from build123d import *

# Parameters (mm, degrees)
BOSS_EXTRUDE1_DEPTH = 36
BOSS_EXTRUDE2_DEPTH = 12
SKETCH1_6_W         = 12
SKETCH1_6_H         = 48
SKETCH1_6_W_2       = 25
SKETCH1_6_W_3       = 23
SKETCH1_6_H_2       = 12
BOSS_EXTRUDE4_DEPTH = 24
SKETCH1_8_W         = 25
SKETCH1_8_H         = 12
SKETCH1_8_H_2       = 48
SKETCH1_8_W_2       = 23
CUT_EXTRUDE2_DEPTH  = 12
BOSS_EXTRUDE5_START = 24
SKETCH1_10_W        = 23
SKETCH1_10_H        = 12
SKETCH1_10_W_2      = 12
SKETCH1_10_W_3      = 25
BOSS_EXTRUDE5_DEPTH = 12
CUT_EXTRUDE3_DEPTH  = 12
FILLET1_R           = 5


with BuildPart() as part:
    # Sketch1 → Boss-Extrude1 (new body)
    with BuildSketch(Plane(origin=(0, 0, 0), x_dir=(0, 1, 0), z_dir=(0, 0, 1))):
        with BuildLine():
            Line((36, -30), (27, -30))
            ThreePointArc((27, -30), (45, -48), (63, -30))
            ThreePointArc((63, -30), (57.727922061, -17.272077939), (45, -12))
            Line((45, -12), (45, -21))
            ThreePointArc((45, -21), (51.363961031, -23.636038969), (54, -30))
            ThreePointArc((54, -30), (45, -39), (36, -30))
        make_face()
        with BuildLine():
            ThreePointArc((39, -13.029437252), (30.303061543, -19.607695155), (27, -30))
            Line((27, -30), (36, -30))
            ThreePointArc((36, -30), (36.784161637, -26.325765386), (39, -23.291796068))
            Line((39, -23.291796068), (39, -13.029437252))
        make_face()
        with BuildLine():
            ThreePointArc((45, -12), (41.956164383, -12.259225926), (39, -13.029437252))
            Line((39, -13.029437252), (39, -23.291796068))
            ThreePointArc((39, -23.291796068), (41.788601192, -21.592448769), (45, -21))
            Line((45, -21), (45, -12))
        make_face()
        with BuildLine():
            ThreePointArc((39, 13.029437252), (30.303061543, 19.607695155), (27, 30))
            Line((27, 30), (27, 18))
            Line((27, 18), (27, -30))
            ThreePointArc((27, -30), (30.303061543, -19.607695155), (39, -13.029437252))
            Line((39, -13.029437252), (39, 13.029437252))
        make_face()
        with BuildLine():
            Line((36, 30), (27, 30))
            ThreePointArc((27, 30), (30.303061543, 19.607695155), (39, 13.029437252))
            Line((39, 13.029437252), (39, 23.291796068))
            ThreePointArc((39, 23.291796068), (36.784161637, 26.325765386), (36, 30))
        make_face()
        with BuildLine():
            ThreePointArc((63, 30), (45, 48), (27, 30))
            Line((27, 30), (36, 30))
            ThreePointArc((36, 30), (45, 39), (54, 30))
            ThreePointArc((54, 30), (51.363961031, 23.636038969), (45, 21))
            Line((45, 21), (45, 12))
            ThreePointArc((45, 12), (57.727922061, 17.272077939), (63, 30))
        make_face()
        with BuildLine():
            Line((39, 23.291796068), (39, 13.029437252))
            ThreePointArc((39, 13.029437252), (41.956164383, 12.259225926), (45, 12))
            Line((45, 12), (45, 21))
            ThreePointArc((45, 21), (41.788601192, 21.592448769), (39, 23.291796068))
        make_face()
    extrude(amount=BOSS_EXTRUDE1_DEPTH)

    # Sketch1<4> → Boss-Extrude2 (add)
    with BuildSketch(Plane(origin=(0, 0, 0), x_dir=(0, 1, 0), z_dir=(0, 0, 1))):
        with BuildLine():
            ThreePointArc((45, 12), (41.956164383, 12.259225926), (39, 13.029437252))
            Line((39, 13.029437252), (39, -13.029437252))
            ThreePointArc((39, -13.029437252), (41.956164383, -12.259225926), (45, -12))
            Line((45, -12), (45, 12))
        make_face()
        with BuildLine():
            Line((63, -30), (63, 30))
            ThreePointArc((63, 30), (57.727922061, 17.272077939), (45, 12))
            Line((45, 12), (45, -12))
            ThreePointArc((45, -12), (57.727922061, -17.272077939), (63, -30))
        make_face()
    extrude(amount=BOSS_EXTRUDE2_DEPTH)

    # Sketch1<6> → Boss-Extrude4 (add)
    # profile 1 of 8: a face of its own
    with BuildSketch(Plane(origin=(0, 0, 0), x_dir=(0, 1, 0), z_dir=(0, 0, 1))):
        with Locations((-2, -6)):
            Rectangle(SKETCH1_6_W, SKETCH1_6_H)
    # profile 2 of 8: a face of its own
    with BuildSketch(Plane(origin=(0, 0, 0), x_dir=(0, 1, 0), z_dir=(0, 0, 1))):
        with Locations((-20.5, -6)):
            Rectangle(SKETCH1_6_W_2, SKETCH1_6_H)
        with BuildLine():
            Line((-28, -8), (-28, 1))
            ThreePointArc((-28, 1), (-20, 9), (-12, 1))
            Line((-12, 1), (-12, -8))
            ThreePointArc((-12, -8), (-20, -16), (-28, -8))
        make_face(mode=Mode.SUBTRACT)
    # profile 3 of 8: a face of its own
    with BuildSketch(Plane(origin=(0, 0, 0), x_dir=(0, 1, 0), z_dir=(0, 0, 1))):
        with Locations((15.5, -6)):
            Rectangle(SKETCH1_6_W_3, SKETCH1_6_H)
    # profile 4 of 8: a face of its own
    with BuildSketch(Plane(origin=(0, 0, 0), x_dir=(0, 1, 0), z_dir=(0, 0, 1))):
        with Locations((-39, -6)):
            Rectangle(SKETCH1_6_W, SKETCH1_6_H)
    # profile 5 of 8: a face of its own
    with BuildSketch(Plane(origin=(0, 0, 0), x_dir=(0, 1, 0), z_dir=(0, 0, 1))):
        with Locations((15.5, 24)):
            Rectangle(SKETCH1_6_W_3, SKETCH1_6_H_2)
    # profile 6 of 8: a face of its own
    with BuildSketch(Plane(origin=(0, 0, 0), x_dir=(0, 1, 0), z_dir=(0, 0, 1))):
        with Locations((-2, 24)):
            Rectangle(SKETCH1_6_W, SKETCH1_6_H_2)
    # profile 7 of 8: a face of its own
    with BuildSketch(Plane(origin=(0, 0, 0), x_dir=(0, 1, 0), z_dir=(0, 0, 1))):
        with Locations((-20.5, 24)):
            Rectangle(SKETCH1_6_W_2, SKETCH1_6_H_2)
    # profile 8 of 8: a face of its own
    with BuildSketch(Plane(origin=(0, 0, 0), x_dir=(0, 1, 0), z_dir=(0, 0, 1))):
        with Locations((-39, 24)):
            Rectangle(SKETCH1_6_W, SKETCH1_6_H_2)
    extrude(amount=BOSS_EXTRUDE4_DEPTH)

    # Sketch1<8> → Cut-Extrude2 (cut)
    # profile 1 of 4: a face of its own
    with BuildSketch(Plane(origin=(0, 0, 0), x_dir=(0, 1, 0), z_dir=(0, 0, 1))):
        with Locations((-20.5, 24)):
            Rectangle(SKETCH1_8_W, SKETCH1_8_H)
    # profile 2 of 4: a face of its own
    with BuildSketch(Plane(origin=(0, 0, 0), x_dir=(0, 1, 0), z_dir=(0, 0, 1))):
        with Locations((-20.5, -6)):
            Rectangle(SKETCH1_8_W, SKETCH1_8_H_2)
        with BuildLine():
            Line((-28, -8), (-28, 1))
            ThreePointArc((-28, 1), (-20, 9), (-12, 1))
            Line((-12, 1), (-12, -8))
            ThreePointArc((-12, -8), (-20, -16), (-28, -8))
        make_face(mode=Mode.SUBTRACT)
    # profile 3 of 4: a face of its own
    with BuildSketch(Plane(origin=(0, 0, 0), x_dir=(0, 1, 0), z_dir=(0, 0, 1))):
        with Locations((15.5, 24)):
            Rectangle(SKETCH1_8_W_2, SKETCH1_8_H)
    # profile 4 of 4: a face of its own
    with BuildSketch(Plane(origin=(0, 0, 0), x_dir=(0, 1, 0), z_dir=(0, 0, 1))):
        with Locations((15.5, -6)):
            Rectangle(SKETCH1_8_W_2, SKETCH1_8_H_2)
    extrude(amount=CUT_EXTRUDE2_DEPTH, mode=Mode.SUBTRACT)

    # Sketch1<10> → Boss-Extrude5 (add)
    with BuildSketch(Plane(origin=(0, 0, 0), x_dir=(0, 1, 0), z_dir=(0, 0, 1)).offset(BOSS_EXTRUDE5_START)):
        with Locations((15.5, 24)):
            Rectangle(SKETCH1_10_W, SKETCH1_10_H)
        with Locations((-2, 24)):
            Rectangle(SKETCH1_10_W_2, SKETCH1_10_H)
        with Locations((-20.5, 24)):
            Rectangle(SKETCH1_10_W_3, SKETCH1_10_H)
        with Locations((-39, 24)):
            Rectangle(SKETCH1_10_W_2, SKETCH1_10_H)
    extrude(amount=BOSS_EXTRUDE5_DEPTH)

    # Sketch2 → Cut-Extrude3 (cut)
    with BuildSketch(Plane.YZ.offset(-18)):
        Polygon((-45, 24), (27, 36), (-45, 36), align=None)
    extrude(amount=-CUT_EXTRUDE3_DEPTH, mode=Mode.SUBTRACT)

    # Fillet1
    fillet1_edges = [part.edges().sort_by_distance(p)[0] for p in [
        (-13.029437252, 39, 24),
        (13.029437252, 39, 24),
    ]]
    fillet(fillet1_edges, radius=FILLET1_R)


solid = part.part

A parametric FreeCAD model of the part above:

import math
import FreeCAD as App
import Part
import Sketcher

V = App.Vector
Q = App.Units.Quantity


def edges_at(feature, points):
    """Names of the edges that pass closest to the given points."""
    edges = feature.Shape.Edges
    near = lambda p: min(range(len(edges)), key=lambda i: edges[i].distToShape(Part.Vertex(*p))[0])
    return sorted({f"Edge{near(p) + 1}" for p in points})


def add_polygon(sketch, points):
    """Adds a closed chain of lines whose ends are joined by coincident constraints."""
    first, n = sketch.GeometryCount, len(points)
    for a, b in zip(points, points[1:] + points[:1]):
        sketch.addGeometry(Part.LineSegment(App.Vector(*a, 0), App.Vector(*b, 0)), False)
    for i in range(n):
        sketch.addConstraint(Sketcher.Constraint("Coincident", first + i, 2, first + (i + 1) % n, 1))

doc = App.newDocument("Part")
body = doc.addObject("PartDesign::Body", "Body")

# Sketch on XY plane
sketch1 = body.newObject("Sketcher::SketchObject", "Sketch")
sketch1.AttachmentSupport = (doc.getObject("XY_Plane"), [""])
sketch1.MapMode = "FlatFace"
sketch1.addGeometry([
    Part.ArcOfCircle(Part.Circle(V(30, 45, 0), V(0, 0, 1), 18), math.radians(-90), math.radians(90)),  # 0
    Part.ArcOfCircle(Part.Circle(V(30, 45, 0), V(0, 0, 1), 18), math.radians(90), math.radians(180)),  # 1
    Part.ArcOfCircle(Part.Circle(V(30, 45, 0), V(0, 0, 1), 18), math.radians(180), math.radians(199.471221)),  # 2
    Part.LineSegment(V(13.029437, 39, 0), V(-13.029437, 39, 0)),  # 3
    Part.ArcOfCircle(Part.Circle(V(-30, 45, 0), V(0, 0, 1), 18), math.radians(-19.471221), math.radians(0)),  # 4
    Part.ArcOfCircle(Part.Circle(V(-30, 45, 0), V(0, 0, 1), 18), math.radians(0), math.radians(90)),  # 5
    Part.ArcOfCircle(Part.Circle(V(-30, 45, 0), V(0, 0, 1), 18), math.radians(90), math.radians(270)),  # 6
    Part.LineSegment(V(-30, 27, 0), V(30, 27, 0)),  # 7
    Part.ArcOfCircle(Part.Circle(V(-30, 45, 0), V(0, 0, 1), 9), math.radians(-90), math.radians(-41.810315)),  # 8
    Part.ArcOfCircle(Part.Circle(V(-30, 45, 0), V(0, 0, 1), 9), math.radians(90), math.radians(270)),  # 9
    Part.ArcOfCircle(Part.Circle(V(-30, 45, 0), V(0, 0, 1), 9), math.radians(0), math.radians(90)),  # 10
    Part.ArcOfCircle(Part.Circle(V(-30, 45, 0), V(0, 0, 1), 9), math.radians(-41.810315), math.radians(0)),  # 11
    Part.ArcOfCircle(Part.Circle(V(30, 45, 0), V(0, 0, 1), 9), math.radians(90), math.radians(180)),  # 12
    Part.ArcOfCircle(Part.Circle(V(30, 45, 0), V(0, 0, 1), 9), math.radians(-90), math.radians(90)),  # 13
    Part.ArcOfCircle(Part.Circle(V(30, 45, 0), V(0, 0, 1), 9), math.radians(-138.189685), math.radians(-90)),  # 14
    Part.ArcOfCircle(Part.Circle(V(30, 45, 0), V(0, 0, 1), 9), math.radians(180), math.radians(221.810315)),  # 15
], False)
sketch1.addConstraint([
    Sketcher.Constraint("Tangent", 0, 2, 1, 1),
    Sketcher.Constraint("Tangent", 1, 2, 2, 1),
    Sketcher.Constraint("Coincident", 2, 2, 3, 1),
    Sketcher.Constraint("Coincident", 3, 2, 4, 1),
    Sketcher.Constraint("Tangent", 4, 2, 5, 1),
    Sketcher.Constraint("Tangent", 5, 2, 6, 1),
    Sketcher.Constraint("Tangent", 6, 2, 7, 1),
    Sketcher.Constraint("Tangent", 7, 2, 0, 1),
    Sketcher.Constraint("Tangent", 8, 1, 9, 2),
    Sketcher.Constraint("Tangent", 9, 1, 10, 2),
    Sketcher.Constraint("Tangent", 10, 1, 11, 2),
    Sketcher.Constraint("Tangent", 11, 1, 8, 2),
    Sketcher.Constraint("Tangent", 12, 1, 13, 2),
    Sketcher.Constraint("Tangent", 13, 1, 14, 2),
    Sketcher.Constraint("Tangent", 14, 1, 15, 2),
    Sketcher.Constraint("Tangent", 15, 1, 12, 2),
    Sketcher.Constraint("Horizontal", 3),
    Sketcher.Constraint("Horizontal", 7),
    Sketcher.Constraint("Coincident", 2, 3, 0, 3),
    Sketcher.Constraint("Coincident", 6, 3, 4, 3),
    Sketcher.Constraint("Coincident", 8, 3, 4, 3),
    Sketcher.Constraint("Coincident", 12, 3, 0, 3),
    Sketcher.Constraint("Equal", 2, 4),
    Sketcher.Constraint("Equal", 8, 9),
    Sketcher.Constraint("Equal", 11, 12),
    Sketcher.Constraint("Equal", 12, 13),
    Sketcher.Constraint("Symmetric", 1, 2, 4, 2, -2),
    Sketcher.Constraint("Horizontal", 15, 3, 1, 2),
    Sketcher.Constraint("Horizontal", 4, 2, 10, 1),
    Sketcher.Constraint("Horizontal", 3, 2, 11, 1),
    Sketcher.Constraint("Horizontal", 11, 1, 14, 1),
    Sketcher.Constraint("Horizontal", 10, 1, 15, 1),
    Sketcher.Constraint("Vertical", 15, 3, 0, 2),
    Sketcher.Constraint("Vertical", 11, 3, 5, 2),
    Sketcher.Constraint("Vertical", 6, 2, 8, 1),
    Sketcher.Constraint("Vertical", 8, 1, 9, 1),
    Sketcher.Constraint("Vertical", 7, 2, 12, 1),
    Sketcher.Constraint("Vertical", 12, 1, 13, 1),
    Sketcher.Constraint("Radius", 0, Q("18 mm")),
    Sketcher.Constraint("Radius", 8, Q("9 mm")),
    Sketcher.Constraint("DistanceX", 7, 1, 7, 2, Q("60 mm")),
    Sketcher.Constraint("DistanceY", -1, 1, 0, 3, Q("45 mm")),
    Sketcher.Constraint("DistanceY", -1, 1, 2, 2, Q("39 mm")),
])
pad1 = body.newObject("PartDesign::Pad", "Pad")
pad1.Profile = sketch1
pad1.Length = 36

# Sketch on XY plane
sketch2 = body.newObject("Sketcher::SketchObject", "Sketch001")
sketch2.AttachmentSupport = (doc.getObject("XY_Plane"), [""])
sketch2.MapMode = "FlatFace"
sketch2.addGeometry([
    Part.ArcOfCircle(Part.Circle(V(-30, 45, 0), V(0, 0, 1), 18), math.radians(-19.471221), math.radians(0)),  # 0
    Part.LineSegment(V(-13.029437, 39, 0), V(13.029437, 39, 0)),  # 1
    Part.ArcOfCircle(Part.Circle(V(30, 45, 0), V(0, 0, 1), 18), math.radians(180), math.radians(199.471221)),  # 2
    Part.ArcOfCircle(Part.Circle(V(30, 45, 0), V(0, 0, 1), 18), math.radians(90), math.radians(180)),  # 3
    Part.LineSegment(V(30, 63, 0), V(-30, 63, 0)),  # 4
    Part.ArcOfCircle(Part.Circle(V(-30, 45, 0), V(0, 0, 1), 18), math.radians(0), math.radians(90)),  # 5
], False)
sketch2.addConstraint([
    Sketcher.Constraint("Coincident", 0, 1, 1, 1),
    Sketcher.Constraint("Coincident", 1, 2, 2, 2),
    Sketcher.Constraint("Tangent", 2, 1, 3, 2),
    Sketcher.Constraint("Tangent", 3, 1, 4, 1),
    Sketcher.Constraint("Tangent", 4, 2, 5, 2),
    Sketcher.Constraint("Tangent", 5, 1, 0, 2),
    Sketcher.Constraint("Horizontal", 1),
    Sketcher.Constraint("Horizontal", 4),
    Sketcher.Constraint("Equal", 0, 2),
    Sketcher.Constraint("Equal", 2, 3),
    Sketcher.Constraint("Equal", 3, 5),
    Sketcher.Constraint("Symmetric", 2, 1, 5, 1, -2),
    Sketcher.Constraint("Horizontal", 5, 3, 2, 1),
    Sketcher.Constraint("Radius", 0, Q("18 mm")),
    Sketcher.Constraint("DistanceX", 4, 2, 4, 1, Q("60 mm")),
    Sketcher.Constraint("DistanceY", -1, 1, 0, 3, Q("45 mm")),
    Sketcher.Constraint("DistanceY", -1, 1, 0, 1, Q("39 mm")),
])
pad2 = body.newObject("PartDesign::Pad", "Pad001")
pad2.Profile = sketch2
pad2.Length = 12

# Sketch on XY plane
sketch3 = body.newObject("Sketcher::SketchObject", "Sketch002")
sketch3.AttachmentSupport = (doc.getObject("XY_Plane"), [""])
sketch3.MapMode = "FlatFace"
add_polygon(sketch3, [(30, 27), (-30, 27), (-30, -45), (30, -45)])  # lines 0-3
sketch3.addGeometry(Part.LineSegment(V(8, -28, 0), V(-1, -28, 0)), False)  # 4
sketch3.addGeometry(Part.ArcOfCircle(Part.Circle(V(-1, -20, 0), V(0, 0, 1), 8), math.radians(90), math.radians(270)), False)  # 5
sketch3.addGeometry(Part.LineSegment(V(-1, -12, 0), V(8, -12, 0)), False)  # 6
sketch3.addGeometry(Part.ArcOfCircle(Part.Circle(V(8, -20, 0), V(0, 0, 1), 8), math.radians(-90), math.radians(90)), False)  # 7
sketch3.addConstraint([
    Sketcher.Constraint("Tangent", 4, 2, 5, 2),
    Sketcher.Constraint("Tangent", 5, 1, 6, 1),
    Sketcher.Constraint("Tangent", 6, 2, 7, 2),
    Sketcher.Constraint("Tangent", 7, 1, 4, 1),
    Sketcher.Constraint("Horizontal", 0),
    Sketcher.Constraint("Vertical", 1),
    Sketcher.Constraint("Horizontal", 2),
    Sketcher.Constraint("Vertical", 3),
    Sketcher.Constraint("Horizontal", 4),
    Sketcher.Constraint("Horizontal", 6),
    Sketcher.Constraint("Radius", 5, Q("8 mm")),
    Sketcher.Constraint("DistanceX", 0, 2, 0, 1, Q("60 mm")),
    Sketcher.Constraint("DistanceX", 4, 2, 4, 1, Q("9 mm")),
    Sketcher.Constraint("DistanceY", 1, 2, 1, 1, Q("72 mm")),
    Sketcher.Constraint("DistanceX", 5, 3, -1, 1, Q("1 mm")),
    Sketcher.Constraint("DistanceY", 5, 3, -1, 1, Q("20 mm")),
    Sketcher.Constraint("DistanceX", 0, 2, -1, 1, Q("30 mm")),
    Sketcher.Constraint("DistanceY", -1, 1, 0, 2, Q("27 mm")),
])
pad3 = body.newObject("PartDesign::Pad", "Pad002")
pad3.Profile = sketch3
pad3.Length = 24

# Sketch on XY plane
sketch4 = body.newObject("Sketcher::SketchObject", "Sketch003")
sketch4.AttachmentSupport = (doc.getObject("XY_Plane"), [""])
sketch4.MapMode = "FlatFace"
add_polygon(sketch4, [(-30, -33), (30, -33), (30, -8), (-30, -8)])  # lines 0-3
sketch4.addGeometry(Part.LineSegment(V(8, -28, 0), V(-1, -28, 0)), False)  # 4
sketch4.addGeometry(Part.ArcOfCircle(Part.Circle(V(-1, -20, 0), V(0, 0, 1), 8), math.radians(90), math.radians(270)), False)  # 5
sketch4.addGeometry(Part.LineSegment(V(-1, -12, 0), V(8, -12, 0)), False)  # 6
sketch4.addGeometry(Part.ArcOfCircle(Part.Circle(V(8, -20, 0), V(0, 0, 1), 8), math.radians(-90), math.radians(90)), False)  # 7
add_polygon(sketch4, [(-30, 4), (30, 4), (30, 27), (-30, 27)])  # lines 8-11
sketch4.addConstraint([
    Sketcher.Constraint("Tangent", 4, 2, 5, 2),
    Sketcher.Constraint("Tangent", 5, 1, 6, 1),
    Sketcher.Constraint("Tangent", 6, 2, 7, 2),
    Sketcher.Constraint("Tangent", 7, 1, 4, 1),
    Sketcher.Constraint("Horizontal", 0),
    Sketcher.Constraint("Vertical", 1),
    Sketcher.Constraint("Horizontal", 2),
    Sketcher.Constraint("Vertical", 3),
    Sketcher.Constraint("Horizontal", 4),
    Sketcher.Constraint("Horizontal", 6),
    Sketcher.Constraint("Horizontal", 8),
    Sketcher.Constraint("Vertical", 9),
    Sketcher.Constraint("Horizontal", 10),
    Sketcher.Constraint("Vertical", 11),
    Sketcher.Constraint("Vertical", 1, 2, 8, 2),
    Sketcher.Constraint("Vertical", 3, 2, 10, 2),
    Sketcher.Constraint("Radius", 5, Q("8 mm")),
    Sketcher.Constraint("DistanceX", 0, 1, 0, 2, Q("60 mm")),
    Sketcher.Constraint("DistanceX", 4, 2, 4, 1, Q("9 mm")),
    Sketcher.Constraint("DistanceY", 1, 1, 1, 2, Q("25 mm")),
    Sketcher.Constraint("DistanceY", 9, 1, 9, 2, Q("23 mm")),
    Sketcher.Constraint("DistanceX", 5, 3, -1, 1, Q("1 mm")),
    Sketcher.Constraint("DistanceY", 5, 3, -1, 1, Q("20 mm")),
    Sketcher.Constraint("DistanceX", -1, 1, 0, 2, Q("30 mm")),
    Sketcher.Constraint("DistanceY", 0, 2, -1, 1, Q("33 mm")),
    Sketcher.Constraint("DistanceY", -1, 1, 8, 2, Q("4 mm")),
])
pocket1 = body.newObject("PartDesign::Pocket", "Pocket")
pocket1.Profile = sketch4
pocket1.Length = 12
pocket1.Reversed = True

# Sketch on XY plane
sketch5 = body.newObject("Sketcher::SketchObject", "Sketch004")
sketch5.AttachmentSupport = (doc.getObject("XY_Plane"), [""])
sketch5.MapMode = "FlatFace"
sketch5.AttachmentOffset = App.Placement(V(0, 0, 24), App.Rotation())
add_polygon(sketch5, [(-18, 27), (-30, 27), (-30, -45), (-18, -45)])  # lines 0-3
sketch5.addConstraint([
    Sketcher.Constraint("Horizontal", 0),
    Sketcher.Constraint("Vertical", 1),
    Sketcher.Constraint("Horizontal", 2),
    Sketcher.Constraint("Vertical", 3),
    Sketcher.Constraint("DistanceX", 0, 2, 0, 1, Q("12 mm")),
    Sketcher.Constraint("DistanceY", 1, 2, 1, 1, Q("72 mm")),
    Sketcher.Constraint("DistanceX", 0, 2, -1, 1, Q("30 mm")),
    Sketcher.Constraint("DistanceY", -1, 1, 0, 2, Q("27 mm")),
])
pad4 = body.newObject("PartDesign::Pad", "Pad003")
pad4.Profile = sketch5
pad4.Length = 12

# Sketch on YZ plane
sketch6 = body.newObject("Sketcher::SketchObject", "Sketch005")
sketch6.AttachmentSupport = (doc.getObject("YZ_Plane"), [""])
sketch6.MapMode = "FlatFace"
sketch6.AttachmentOffset = App.Placement(V(0, 0, -18), App.Rotation())
add_polygon(sketch6, [(-45, 24), (27, 36), (-45, 36)])  # lines 0-2
sketch6.addConstraint([
    Sketcher.Constraint("Horizontal", 1),
    Sketcher.Constraint("Vertical", 2),
    Sketcher.Constraint("DistanceX", 1, 2, 1, 1, Q("72 mm")),
    Sketcher.Constraint("DistanceY", 2, 2, 2, 1, Q("12 mm")),
    Sketcher.Constraint("DistanceX", -1, 1, 0, 2, Q("27 mm")),
    Sketcher.Constraint("DistanceY", -1, 1, 0, 2, Q("36 mm")),
])
pocket2 = body.newObject("PartDesign::Pocket", "Pocket001")
pocket2.Profile = sketch6
pocket2.Length = 12
doc.recompute()

fillet = body.newObject("PartDesign::Fillet", "Fillet")
fillet.Base = (pocket2, edges_at(pocket2, [(-13.029, 39, 24), (13.029, 39, 24)]))
fillet.Radius = 5

doc.recompute()
